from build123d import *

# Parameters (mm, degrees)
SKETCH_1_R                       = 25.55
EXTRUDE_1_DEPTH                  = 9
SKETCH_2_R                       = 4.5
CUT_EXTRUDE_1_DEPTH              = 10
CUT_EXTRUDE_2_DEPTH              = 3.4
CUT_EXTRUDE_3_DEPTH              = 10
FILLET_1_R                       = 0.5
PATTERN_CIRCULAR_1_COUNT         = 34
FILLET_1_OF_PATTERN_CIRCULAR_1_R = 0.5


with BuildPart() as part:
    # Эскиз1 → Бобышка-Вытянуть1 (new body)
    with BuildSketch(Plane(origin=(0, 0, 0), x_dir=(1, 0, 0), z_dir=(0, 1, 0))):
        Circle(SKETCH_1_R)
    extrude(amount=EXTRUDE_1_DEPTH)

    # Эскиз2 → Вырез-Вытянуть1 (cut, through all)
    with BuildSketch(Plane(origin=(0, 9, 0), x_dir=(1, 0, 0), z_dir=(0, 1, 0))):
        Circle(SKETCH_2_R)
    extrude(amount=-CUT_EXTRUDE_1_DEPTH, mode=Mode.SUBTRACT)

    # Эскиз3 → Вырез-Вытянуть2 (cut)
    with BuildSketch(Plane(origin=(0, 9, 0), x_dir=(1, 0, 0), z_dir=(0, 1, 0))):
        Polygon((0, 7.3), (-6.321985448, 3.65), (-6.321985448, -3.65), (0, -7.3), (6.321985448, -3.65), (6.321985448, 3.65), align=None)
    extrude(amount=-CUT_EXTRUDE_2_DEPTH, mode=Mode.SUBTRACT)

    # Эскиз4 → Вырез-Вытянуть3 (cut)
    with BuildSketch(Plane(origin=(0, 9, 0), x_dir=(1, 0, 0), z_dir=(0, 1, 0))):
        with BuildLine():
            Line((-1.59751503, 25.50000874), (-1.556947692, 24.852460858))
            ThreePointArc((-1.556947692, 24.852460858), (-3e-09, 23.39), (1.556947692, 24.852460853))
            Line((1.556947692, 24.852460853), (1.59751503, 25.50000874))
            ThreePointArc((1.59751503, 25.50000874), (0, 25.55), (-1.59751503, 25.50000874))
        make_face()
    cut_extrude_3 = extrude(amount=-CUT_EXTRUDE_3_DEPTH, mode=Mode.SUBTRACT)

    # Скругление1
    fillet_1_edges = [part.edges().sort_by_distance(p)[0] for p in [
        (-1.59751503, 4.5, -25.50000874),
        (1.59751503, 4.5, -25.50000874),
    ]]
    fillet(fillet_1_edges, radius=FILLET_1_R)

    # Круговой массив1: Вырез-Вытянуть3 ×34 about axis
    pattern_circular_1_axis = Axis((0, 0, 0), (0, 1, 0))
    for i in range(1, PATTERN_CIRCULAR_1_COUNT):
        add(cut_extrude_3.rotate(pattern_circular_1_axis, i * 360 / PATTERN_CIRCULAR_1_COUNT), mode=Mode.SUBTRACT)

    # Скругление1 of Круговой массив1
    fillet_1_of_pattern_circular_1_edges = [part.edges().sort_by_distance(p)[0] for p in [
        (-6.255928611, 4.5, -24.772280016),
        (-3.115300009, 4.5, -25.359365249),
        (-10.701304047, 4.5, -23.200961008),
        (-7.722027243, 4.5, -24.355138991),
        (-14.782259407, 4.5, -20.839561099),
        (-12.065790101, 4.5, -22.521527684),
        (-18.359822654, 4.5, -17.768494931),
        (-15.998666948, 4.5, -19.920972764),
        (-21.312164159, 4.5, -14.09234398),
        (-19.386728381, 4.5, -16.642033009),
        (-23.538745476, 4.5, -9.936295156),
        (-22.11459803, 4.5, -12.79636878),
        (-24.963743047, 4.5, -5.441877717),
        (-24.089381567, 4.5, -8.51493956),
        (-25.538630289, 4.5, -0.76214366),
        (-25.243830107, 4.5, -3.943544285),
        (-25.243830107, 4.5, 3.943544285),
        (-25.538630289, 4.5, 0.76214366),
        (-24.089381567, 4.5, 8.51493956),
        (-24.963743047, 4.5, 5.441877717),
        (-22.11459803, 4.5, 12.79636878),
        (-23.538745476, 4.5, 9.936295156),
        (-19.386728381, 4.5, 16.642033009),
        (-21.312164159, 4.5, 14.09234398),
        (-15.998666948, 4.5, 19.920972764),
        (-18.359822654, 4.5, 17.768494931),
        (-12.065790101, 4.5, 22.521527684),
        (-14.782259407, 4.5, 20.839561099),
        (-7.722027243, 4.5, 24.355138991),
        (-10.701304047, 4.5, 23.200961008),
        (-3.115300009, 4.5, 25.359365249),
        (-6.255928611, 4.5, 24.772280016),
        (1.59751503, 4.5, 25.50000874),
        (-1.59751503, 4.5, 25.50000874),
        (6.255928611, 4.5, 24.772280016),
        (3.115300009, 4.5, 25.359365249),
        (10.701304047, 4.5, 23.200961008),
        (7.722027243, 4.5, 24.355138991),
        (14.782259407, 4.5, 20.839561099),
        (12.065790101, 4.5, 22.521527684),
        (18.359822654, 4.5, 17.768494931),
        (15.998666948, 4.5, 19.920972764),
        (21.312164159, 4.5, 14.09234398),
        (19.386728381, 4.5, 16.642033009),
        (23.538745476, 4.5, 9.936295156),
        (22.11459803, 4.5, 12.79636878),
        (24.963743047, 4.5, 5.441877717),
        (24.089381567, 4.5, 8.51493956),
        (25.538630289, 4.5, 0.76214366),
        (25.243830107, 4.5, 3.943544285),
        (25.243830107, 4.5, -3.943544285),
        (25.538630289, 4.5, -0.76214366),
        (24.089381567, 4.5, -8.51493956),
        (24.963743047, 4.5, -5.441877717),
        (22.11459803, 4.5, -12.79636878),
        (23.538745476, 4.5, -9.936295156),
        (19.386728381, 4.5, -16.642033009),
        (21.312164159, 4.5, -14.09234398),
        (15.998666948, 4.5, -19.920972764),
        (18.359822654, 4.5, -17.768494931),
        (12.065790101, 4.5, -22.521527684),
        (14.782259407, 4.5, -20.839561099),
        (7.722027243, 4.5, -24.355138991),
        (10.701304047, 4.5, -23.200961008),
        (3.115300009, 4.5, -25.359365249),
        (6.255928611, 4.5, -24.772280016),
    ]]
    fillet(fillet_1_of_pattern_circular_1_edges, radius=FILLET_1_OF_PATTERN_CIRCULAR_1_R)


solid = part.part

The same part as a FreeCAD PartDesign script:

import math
import FreeCAD as App
import Part
import Sketcher
Q = App.Units.Quantity


def edges_at(feature, points):
    """Names of the edges that pass closest to the given points."""
    edges = feature.Shape.Edges
    near = lambda p: min(range(len(edges)), key=lambda i: edges[i].distToShape(Part.Vertex(*p))[0])
    return sorted({f"Edge{near(p) + 1}" for p in points})

doc = App.newDocument("Part")
body = doc.addObject("PartDesign::Body", "Body")

sketch1 = doc.addObject("Sketcher::SketchObject", "Sketch")
body.addObject(sketch1)
sketch1.AttachmentSupport = (doc.XZ_Plane, [""])
sketch1.MapMode = "FlatFace"
sketch1.addGeometry(Part.Circle(App.Vector(0, 0, 0), App.Vector(0, 0, 1), 25.55), False)
sketch1.addConstraint([
    Sketcher.Constraint("Coincident", 0, 3, -1, 1),
    Sketcher.Constraint("Diameter", 0, 51.1),
])
pad1 = doc.addObject("PartDesign::Pad", "Pad")
body.addObject(pad1)
pad1.Profile = sketch1
pad1.Length = 9
pad1.Reversed = True

sketch2 = doc.addObject("Sketcher::SketchObject", "Sketch001")
body.addObject(sketch2)
sketch2.AttachmentSupport = (doc.XZ_Plane, [""])
sketch2.MapMode = "FlatFace"
sketch2.AttachmentOffset = App.Placement(App.Vector(0, 0, -9), App.Rotation())
sketch2.addGeometry(Part.Circle(App.Vector(0, 0, 0), App.Vector(0, 0, 1), 4.5), False)
sketch2.addConstraint([
    Sketcher.Constraint("Coincident", 0, 3, -1, 1),
    Sketcher.Constraint("Diameter", 0, 9.0),
])
pocket1 = doc.addObject("PartDesign::Pocket", "Pocket")
body.addObject(pocket1)
pocket1.Profile = sketch2
pocket1.Type = "ThroughAll"
pocket1.Reversed = True

sketch3 = doc.addObject("Sketcher::SketchObject", "Sketch002")
body.addObject(sketch3)
sketch3.AttachmentSupport = (doc.XZ_Plane, [""])
sketch3.MapMode = "FlatFace"
sketch3.AttachmentOffset = App.Placement(App.Vector(0, 0, -9), App.Rotation())
sketch3.addGeometry([
    Part.LineSegment(App.Vector(0, -7.3, 0), App.Vector(-6.321985, -3.65, 0)),
    Part.LineSegment(App.Vector(-6.321985, -3.65, 0), App.Vector(-6.321985, 3.65, 0)),
    Part.LineSegment(App.Vector(-6.321985, 3.65, 0), App.Vector(0, 7.3, 0)),
    Part.LineSegment(App.Vector(0, 7.3, 0), App.Vector(6.321985, 3.65, 0)),
    Part.LineSegment(App.Vector(6.321985, 3.65, 0), App.Vector(6.321985, -3.65, 0)),
    Part.LineSegment(App.Vector(6.321985, -3.65, 0), App.Vector(0, -7.3, 0)),
], False)
sketch3.addConstraint([
    Sketcher.Constraint("Coincident", 0, 2, 1, 1),
    Sketcher.Constraint("Coincident", 1, 2, 2, 1),
    Sketcher.Constraint("Coincident", 2, 2, 3, 1),
    Sketcher.Constraint("Coincident", 3, 2, 4, 1),
    Sketcher.Constraint("Coincident", 4, 2, 5, 1),
    Sketcher.Constraint("Coincident", 5, 2, 0, 1),
    Sketcher.Constraint("Vertical", 1),
    Sketcher.Constraint("Vertical", 4),
    Sketcher.Constraint("Symmetric", 0, 2, 3, 2, -1, 1),
    Sketcher.Constraint("Symmetric", 2, 2, 5, 2, -1, 1),
    Sketcher.Constraint("PointOnObject", 2, 2, -2),
    Sketcher.Constraint("Parallel", 2, 5),
    Sketcher.Constraint("Horizontal", 1, 2, 3, 2),
    Sketcher.Constraint("Angle", 0, Q("150 deg")),
    Sketcher.Constraint("DistanceY", 1, 1, 1, 2, 7.3),
    Sketcher.Constraint("Distance", 0, 7.3),
])
pocket2 = doc.addObject("PartDesign::Pocket", "Pocket001")
body.addObject(pocket2)
pocket2.Profile = sketch3
pocket2.Length = 3.4
pocket2.Reversed = True

sketch4 = doc.addObject("Sketcher::SketchObject", "Sketch003")
body.addObject(sketch4)
sketch4.AttachmentSupport = (doc.XZ_Plane, [""])
sketch4.MapMode = "FlatFace"
sketch4.AttachmentOffset = App.Placement(App.Vector(0, 0, -9), App.Rotation())
sketch4.addGeometry([
    Part.LineSegment(App.Vector(-1.597515, -25.500009, 0), App.Vector(-1.556948, -24.852461, 0)),
    Part.ArcOfCircle(Part.Circle(App.Vector(0, -24.95, 0), App.Vector(0, 0, 1), 1.56), math.radians(3.584762), math.radians(176.415238)),
    Part.LineSegment(App.Vector(1.556948, -24.852461, 0), App.Vector(1.597515, -25.500009, 0)),
    Part.ArcOfCircle(Part.Circle(App.Vector(0, 0, 0), App.Vector(0, 0, 1), 25.55), math.radians(-93.58476), math.radians(-86.41524)),
], False)
sketch4.addConstraint([
    Sketcher.Constraint("Tangent", 0, 2, 1, 2),
    Sketcher.Constraint("Tangent", 1, 1, 2, 1),
    Sketcher.Constraint("Coincident", 2, 2, 3, 2),
    Sketcher.Constraint("Coincident", 3, 1, 0, 1),
    Sketcher.Constraint("Coincident", 3, 3, -1, 1),
    Sketcher.Constraint("Symmetric", 0, 2, 1, 1, -2),
    Sketcher.Constraint("Radius", 1, 1.56),
    Sketcher.Constraint("Radius", 3, 25.55),
    Sketcher.Constraint("DistanceY", 1, 3, -1, 1, 24.95),
    Sketcher.Constraint("DistanceY", 0, 2, -1, 1, 24.852461),
])
pocket3 = doc.addObject("PartDesign::Pocket", "Pocket002")
body.addObject(pocket3)
pocket3.Profile = sketch4
pocket3.Length = 10
pocket3.Reversed = True
doc.recompute()

fillet = doc.addObject("PartDesign::Fillet", "Fillet")
body.addObject(fillet)
fillet.Base = (pocket3, edges_at(pocket3, [(-1.598, 4.5, -25.5), (1.598, 4.5, -25.5)]))
fillet.Radius = 0.5
doc.recompute()

polarpattern = doc.addObject("PartDesign::PolarPattern", "PolarPattern")
body.addObject(polarpattern)
polarpattern.Originals = [pocket3]
polarpattern.Axis = (doc.Y_Axis, [""])
polarpattern.Angle = 360
polarpattern.Occurrences = 34
body.Tip = polarpattern
doc.recompute()

fillet2 = doc.addObject("PartDesign::Fillet", "Fillet001")
body.addObject(fillet2)
fillet2.Base = (polarpattern, edges_at(polarpattern, [
    (-6.256, 4.5, -24.772),
    (-3.115, 4.5, -25.359),
    (-10.701, 4.5, -23.201),
    (-7.722, 4.5, -24.355),
    (-14.782, 4.5, -20.84),
    (-12.066, 4.5, -22.522),
    (-18.36, 4.5, -17.768),
    (-15.999, 4.5, -19.921),
    (-21.312, 4.5, -14.092),
    (-19.387, 4.5, -16.642),
    (-23.539, 4.5, -9.936),
    (-22.115, 4.5, -12.796),
    (-24.964, 4.5, -5.442),
    (-24.089, 4.5, -8.515),
    (-25.539, 4.5, -0.762),
    (-25.244, 4.5, -3.944),
    (-25.244, 4.5, 3.944),
    (-25.539, 4.5, 0.762),
    (-24.089, 4.5, 8.515),
    (-24.964, 4.5, 5.442),
    (-22.115, 4.5, 12.796),
    (-23.539, 4.5, 9.936),
    (-19.387, 4.5, 16.642),
    (-21.312, 4.5, 14.092),
    (-15.999, 4.5, 19.921),
    (-18.36, 4.5, 17.768),
    (-12.066, 4.5, 22.522),
    (-14.782, 4.5, 20.84),
    (-7.722, 4.5, 24.355),
    (-10.701, 4.5, 23.201),
    (-3.115, 4.5, 25.359),
    (-6.256, 4.5, 24.772),
    (1.598, 4.5, 25.5),
    (-1.598, 4.5, 25.5),
    (6.256, 4.5, 24.772),
    (3.115, 4.5, 25.359),
    (10.701, 4.5, 23.201),
    (7.722, 4.5, 24.355),
    (14.782, 4.5, 20.84),
    (12.066, 4.5, 22.522),
    (18.36, 4.5, 17.768),
    (15.999, 4.5, 19.921),
    (21.312, 4.5, 14.092),
    (19.387, 4.5, 16.642),
    (23.539, 4.5, 9.936),
    (22.115, 4.5, 12.796),
    (24.964, 4.5, 5.442),
    (24.089, 4.5, 8.515),
    (25.539, 4.5, 0.762),
    (25.244, 4.5, 3.944),
    (25.244, 4.5, -3.944),
    (25.539, 4.5, -0.762),
    (24.089, 4.5, -8.515),
    (24.964, 4.5, -5.442),
    (22.115, 4.5, -12.796),
    (23.539, 4.5, -9.936),
    (19.387, 4.5, -16.642),
    (21.312, 4.5, -14.092),
    (15.999, 4.5, -19.921),
    (18.36, 4.5, -17.768),
    (12.066, 4.5, -22.522),
    (14.782, 4.5, -20.84),
    (7.722, 4.5, -24.355),
    (10.701, 4.5, -23.201),
    (3.115, 4.5, -25.359),
    (6.256, 4.5, -24.772),
]))
fillet2.Radius = 0.5

doc.recompute()
